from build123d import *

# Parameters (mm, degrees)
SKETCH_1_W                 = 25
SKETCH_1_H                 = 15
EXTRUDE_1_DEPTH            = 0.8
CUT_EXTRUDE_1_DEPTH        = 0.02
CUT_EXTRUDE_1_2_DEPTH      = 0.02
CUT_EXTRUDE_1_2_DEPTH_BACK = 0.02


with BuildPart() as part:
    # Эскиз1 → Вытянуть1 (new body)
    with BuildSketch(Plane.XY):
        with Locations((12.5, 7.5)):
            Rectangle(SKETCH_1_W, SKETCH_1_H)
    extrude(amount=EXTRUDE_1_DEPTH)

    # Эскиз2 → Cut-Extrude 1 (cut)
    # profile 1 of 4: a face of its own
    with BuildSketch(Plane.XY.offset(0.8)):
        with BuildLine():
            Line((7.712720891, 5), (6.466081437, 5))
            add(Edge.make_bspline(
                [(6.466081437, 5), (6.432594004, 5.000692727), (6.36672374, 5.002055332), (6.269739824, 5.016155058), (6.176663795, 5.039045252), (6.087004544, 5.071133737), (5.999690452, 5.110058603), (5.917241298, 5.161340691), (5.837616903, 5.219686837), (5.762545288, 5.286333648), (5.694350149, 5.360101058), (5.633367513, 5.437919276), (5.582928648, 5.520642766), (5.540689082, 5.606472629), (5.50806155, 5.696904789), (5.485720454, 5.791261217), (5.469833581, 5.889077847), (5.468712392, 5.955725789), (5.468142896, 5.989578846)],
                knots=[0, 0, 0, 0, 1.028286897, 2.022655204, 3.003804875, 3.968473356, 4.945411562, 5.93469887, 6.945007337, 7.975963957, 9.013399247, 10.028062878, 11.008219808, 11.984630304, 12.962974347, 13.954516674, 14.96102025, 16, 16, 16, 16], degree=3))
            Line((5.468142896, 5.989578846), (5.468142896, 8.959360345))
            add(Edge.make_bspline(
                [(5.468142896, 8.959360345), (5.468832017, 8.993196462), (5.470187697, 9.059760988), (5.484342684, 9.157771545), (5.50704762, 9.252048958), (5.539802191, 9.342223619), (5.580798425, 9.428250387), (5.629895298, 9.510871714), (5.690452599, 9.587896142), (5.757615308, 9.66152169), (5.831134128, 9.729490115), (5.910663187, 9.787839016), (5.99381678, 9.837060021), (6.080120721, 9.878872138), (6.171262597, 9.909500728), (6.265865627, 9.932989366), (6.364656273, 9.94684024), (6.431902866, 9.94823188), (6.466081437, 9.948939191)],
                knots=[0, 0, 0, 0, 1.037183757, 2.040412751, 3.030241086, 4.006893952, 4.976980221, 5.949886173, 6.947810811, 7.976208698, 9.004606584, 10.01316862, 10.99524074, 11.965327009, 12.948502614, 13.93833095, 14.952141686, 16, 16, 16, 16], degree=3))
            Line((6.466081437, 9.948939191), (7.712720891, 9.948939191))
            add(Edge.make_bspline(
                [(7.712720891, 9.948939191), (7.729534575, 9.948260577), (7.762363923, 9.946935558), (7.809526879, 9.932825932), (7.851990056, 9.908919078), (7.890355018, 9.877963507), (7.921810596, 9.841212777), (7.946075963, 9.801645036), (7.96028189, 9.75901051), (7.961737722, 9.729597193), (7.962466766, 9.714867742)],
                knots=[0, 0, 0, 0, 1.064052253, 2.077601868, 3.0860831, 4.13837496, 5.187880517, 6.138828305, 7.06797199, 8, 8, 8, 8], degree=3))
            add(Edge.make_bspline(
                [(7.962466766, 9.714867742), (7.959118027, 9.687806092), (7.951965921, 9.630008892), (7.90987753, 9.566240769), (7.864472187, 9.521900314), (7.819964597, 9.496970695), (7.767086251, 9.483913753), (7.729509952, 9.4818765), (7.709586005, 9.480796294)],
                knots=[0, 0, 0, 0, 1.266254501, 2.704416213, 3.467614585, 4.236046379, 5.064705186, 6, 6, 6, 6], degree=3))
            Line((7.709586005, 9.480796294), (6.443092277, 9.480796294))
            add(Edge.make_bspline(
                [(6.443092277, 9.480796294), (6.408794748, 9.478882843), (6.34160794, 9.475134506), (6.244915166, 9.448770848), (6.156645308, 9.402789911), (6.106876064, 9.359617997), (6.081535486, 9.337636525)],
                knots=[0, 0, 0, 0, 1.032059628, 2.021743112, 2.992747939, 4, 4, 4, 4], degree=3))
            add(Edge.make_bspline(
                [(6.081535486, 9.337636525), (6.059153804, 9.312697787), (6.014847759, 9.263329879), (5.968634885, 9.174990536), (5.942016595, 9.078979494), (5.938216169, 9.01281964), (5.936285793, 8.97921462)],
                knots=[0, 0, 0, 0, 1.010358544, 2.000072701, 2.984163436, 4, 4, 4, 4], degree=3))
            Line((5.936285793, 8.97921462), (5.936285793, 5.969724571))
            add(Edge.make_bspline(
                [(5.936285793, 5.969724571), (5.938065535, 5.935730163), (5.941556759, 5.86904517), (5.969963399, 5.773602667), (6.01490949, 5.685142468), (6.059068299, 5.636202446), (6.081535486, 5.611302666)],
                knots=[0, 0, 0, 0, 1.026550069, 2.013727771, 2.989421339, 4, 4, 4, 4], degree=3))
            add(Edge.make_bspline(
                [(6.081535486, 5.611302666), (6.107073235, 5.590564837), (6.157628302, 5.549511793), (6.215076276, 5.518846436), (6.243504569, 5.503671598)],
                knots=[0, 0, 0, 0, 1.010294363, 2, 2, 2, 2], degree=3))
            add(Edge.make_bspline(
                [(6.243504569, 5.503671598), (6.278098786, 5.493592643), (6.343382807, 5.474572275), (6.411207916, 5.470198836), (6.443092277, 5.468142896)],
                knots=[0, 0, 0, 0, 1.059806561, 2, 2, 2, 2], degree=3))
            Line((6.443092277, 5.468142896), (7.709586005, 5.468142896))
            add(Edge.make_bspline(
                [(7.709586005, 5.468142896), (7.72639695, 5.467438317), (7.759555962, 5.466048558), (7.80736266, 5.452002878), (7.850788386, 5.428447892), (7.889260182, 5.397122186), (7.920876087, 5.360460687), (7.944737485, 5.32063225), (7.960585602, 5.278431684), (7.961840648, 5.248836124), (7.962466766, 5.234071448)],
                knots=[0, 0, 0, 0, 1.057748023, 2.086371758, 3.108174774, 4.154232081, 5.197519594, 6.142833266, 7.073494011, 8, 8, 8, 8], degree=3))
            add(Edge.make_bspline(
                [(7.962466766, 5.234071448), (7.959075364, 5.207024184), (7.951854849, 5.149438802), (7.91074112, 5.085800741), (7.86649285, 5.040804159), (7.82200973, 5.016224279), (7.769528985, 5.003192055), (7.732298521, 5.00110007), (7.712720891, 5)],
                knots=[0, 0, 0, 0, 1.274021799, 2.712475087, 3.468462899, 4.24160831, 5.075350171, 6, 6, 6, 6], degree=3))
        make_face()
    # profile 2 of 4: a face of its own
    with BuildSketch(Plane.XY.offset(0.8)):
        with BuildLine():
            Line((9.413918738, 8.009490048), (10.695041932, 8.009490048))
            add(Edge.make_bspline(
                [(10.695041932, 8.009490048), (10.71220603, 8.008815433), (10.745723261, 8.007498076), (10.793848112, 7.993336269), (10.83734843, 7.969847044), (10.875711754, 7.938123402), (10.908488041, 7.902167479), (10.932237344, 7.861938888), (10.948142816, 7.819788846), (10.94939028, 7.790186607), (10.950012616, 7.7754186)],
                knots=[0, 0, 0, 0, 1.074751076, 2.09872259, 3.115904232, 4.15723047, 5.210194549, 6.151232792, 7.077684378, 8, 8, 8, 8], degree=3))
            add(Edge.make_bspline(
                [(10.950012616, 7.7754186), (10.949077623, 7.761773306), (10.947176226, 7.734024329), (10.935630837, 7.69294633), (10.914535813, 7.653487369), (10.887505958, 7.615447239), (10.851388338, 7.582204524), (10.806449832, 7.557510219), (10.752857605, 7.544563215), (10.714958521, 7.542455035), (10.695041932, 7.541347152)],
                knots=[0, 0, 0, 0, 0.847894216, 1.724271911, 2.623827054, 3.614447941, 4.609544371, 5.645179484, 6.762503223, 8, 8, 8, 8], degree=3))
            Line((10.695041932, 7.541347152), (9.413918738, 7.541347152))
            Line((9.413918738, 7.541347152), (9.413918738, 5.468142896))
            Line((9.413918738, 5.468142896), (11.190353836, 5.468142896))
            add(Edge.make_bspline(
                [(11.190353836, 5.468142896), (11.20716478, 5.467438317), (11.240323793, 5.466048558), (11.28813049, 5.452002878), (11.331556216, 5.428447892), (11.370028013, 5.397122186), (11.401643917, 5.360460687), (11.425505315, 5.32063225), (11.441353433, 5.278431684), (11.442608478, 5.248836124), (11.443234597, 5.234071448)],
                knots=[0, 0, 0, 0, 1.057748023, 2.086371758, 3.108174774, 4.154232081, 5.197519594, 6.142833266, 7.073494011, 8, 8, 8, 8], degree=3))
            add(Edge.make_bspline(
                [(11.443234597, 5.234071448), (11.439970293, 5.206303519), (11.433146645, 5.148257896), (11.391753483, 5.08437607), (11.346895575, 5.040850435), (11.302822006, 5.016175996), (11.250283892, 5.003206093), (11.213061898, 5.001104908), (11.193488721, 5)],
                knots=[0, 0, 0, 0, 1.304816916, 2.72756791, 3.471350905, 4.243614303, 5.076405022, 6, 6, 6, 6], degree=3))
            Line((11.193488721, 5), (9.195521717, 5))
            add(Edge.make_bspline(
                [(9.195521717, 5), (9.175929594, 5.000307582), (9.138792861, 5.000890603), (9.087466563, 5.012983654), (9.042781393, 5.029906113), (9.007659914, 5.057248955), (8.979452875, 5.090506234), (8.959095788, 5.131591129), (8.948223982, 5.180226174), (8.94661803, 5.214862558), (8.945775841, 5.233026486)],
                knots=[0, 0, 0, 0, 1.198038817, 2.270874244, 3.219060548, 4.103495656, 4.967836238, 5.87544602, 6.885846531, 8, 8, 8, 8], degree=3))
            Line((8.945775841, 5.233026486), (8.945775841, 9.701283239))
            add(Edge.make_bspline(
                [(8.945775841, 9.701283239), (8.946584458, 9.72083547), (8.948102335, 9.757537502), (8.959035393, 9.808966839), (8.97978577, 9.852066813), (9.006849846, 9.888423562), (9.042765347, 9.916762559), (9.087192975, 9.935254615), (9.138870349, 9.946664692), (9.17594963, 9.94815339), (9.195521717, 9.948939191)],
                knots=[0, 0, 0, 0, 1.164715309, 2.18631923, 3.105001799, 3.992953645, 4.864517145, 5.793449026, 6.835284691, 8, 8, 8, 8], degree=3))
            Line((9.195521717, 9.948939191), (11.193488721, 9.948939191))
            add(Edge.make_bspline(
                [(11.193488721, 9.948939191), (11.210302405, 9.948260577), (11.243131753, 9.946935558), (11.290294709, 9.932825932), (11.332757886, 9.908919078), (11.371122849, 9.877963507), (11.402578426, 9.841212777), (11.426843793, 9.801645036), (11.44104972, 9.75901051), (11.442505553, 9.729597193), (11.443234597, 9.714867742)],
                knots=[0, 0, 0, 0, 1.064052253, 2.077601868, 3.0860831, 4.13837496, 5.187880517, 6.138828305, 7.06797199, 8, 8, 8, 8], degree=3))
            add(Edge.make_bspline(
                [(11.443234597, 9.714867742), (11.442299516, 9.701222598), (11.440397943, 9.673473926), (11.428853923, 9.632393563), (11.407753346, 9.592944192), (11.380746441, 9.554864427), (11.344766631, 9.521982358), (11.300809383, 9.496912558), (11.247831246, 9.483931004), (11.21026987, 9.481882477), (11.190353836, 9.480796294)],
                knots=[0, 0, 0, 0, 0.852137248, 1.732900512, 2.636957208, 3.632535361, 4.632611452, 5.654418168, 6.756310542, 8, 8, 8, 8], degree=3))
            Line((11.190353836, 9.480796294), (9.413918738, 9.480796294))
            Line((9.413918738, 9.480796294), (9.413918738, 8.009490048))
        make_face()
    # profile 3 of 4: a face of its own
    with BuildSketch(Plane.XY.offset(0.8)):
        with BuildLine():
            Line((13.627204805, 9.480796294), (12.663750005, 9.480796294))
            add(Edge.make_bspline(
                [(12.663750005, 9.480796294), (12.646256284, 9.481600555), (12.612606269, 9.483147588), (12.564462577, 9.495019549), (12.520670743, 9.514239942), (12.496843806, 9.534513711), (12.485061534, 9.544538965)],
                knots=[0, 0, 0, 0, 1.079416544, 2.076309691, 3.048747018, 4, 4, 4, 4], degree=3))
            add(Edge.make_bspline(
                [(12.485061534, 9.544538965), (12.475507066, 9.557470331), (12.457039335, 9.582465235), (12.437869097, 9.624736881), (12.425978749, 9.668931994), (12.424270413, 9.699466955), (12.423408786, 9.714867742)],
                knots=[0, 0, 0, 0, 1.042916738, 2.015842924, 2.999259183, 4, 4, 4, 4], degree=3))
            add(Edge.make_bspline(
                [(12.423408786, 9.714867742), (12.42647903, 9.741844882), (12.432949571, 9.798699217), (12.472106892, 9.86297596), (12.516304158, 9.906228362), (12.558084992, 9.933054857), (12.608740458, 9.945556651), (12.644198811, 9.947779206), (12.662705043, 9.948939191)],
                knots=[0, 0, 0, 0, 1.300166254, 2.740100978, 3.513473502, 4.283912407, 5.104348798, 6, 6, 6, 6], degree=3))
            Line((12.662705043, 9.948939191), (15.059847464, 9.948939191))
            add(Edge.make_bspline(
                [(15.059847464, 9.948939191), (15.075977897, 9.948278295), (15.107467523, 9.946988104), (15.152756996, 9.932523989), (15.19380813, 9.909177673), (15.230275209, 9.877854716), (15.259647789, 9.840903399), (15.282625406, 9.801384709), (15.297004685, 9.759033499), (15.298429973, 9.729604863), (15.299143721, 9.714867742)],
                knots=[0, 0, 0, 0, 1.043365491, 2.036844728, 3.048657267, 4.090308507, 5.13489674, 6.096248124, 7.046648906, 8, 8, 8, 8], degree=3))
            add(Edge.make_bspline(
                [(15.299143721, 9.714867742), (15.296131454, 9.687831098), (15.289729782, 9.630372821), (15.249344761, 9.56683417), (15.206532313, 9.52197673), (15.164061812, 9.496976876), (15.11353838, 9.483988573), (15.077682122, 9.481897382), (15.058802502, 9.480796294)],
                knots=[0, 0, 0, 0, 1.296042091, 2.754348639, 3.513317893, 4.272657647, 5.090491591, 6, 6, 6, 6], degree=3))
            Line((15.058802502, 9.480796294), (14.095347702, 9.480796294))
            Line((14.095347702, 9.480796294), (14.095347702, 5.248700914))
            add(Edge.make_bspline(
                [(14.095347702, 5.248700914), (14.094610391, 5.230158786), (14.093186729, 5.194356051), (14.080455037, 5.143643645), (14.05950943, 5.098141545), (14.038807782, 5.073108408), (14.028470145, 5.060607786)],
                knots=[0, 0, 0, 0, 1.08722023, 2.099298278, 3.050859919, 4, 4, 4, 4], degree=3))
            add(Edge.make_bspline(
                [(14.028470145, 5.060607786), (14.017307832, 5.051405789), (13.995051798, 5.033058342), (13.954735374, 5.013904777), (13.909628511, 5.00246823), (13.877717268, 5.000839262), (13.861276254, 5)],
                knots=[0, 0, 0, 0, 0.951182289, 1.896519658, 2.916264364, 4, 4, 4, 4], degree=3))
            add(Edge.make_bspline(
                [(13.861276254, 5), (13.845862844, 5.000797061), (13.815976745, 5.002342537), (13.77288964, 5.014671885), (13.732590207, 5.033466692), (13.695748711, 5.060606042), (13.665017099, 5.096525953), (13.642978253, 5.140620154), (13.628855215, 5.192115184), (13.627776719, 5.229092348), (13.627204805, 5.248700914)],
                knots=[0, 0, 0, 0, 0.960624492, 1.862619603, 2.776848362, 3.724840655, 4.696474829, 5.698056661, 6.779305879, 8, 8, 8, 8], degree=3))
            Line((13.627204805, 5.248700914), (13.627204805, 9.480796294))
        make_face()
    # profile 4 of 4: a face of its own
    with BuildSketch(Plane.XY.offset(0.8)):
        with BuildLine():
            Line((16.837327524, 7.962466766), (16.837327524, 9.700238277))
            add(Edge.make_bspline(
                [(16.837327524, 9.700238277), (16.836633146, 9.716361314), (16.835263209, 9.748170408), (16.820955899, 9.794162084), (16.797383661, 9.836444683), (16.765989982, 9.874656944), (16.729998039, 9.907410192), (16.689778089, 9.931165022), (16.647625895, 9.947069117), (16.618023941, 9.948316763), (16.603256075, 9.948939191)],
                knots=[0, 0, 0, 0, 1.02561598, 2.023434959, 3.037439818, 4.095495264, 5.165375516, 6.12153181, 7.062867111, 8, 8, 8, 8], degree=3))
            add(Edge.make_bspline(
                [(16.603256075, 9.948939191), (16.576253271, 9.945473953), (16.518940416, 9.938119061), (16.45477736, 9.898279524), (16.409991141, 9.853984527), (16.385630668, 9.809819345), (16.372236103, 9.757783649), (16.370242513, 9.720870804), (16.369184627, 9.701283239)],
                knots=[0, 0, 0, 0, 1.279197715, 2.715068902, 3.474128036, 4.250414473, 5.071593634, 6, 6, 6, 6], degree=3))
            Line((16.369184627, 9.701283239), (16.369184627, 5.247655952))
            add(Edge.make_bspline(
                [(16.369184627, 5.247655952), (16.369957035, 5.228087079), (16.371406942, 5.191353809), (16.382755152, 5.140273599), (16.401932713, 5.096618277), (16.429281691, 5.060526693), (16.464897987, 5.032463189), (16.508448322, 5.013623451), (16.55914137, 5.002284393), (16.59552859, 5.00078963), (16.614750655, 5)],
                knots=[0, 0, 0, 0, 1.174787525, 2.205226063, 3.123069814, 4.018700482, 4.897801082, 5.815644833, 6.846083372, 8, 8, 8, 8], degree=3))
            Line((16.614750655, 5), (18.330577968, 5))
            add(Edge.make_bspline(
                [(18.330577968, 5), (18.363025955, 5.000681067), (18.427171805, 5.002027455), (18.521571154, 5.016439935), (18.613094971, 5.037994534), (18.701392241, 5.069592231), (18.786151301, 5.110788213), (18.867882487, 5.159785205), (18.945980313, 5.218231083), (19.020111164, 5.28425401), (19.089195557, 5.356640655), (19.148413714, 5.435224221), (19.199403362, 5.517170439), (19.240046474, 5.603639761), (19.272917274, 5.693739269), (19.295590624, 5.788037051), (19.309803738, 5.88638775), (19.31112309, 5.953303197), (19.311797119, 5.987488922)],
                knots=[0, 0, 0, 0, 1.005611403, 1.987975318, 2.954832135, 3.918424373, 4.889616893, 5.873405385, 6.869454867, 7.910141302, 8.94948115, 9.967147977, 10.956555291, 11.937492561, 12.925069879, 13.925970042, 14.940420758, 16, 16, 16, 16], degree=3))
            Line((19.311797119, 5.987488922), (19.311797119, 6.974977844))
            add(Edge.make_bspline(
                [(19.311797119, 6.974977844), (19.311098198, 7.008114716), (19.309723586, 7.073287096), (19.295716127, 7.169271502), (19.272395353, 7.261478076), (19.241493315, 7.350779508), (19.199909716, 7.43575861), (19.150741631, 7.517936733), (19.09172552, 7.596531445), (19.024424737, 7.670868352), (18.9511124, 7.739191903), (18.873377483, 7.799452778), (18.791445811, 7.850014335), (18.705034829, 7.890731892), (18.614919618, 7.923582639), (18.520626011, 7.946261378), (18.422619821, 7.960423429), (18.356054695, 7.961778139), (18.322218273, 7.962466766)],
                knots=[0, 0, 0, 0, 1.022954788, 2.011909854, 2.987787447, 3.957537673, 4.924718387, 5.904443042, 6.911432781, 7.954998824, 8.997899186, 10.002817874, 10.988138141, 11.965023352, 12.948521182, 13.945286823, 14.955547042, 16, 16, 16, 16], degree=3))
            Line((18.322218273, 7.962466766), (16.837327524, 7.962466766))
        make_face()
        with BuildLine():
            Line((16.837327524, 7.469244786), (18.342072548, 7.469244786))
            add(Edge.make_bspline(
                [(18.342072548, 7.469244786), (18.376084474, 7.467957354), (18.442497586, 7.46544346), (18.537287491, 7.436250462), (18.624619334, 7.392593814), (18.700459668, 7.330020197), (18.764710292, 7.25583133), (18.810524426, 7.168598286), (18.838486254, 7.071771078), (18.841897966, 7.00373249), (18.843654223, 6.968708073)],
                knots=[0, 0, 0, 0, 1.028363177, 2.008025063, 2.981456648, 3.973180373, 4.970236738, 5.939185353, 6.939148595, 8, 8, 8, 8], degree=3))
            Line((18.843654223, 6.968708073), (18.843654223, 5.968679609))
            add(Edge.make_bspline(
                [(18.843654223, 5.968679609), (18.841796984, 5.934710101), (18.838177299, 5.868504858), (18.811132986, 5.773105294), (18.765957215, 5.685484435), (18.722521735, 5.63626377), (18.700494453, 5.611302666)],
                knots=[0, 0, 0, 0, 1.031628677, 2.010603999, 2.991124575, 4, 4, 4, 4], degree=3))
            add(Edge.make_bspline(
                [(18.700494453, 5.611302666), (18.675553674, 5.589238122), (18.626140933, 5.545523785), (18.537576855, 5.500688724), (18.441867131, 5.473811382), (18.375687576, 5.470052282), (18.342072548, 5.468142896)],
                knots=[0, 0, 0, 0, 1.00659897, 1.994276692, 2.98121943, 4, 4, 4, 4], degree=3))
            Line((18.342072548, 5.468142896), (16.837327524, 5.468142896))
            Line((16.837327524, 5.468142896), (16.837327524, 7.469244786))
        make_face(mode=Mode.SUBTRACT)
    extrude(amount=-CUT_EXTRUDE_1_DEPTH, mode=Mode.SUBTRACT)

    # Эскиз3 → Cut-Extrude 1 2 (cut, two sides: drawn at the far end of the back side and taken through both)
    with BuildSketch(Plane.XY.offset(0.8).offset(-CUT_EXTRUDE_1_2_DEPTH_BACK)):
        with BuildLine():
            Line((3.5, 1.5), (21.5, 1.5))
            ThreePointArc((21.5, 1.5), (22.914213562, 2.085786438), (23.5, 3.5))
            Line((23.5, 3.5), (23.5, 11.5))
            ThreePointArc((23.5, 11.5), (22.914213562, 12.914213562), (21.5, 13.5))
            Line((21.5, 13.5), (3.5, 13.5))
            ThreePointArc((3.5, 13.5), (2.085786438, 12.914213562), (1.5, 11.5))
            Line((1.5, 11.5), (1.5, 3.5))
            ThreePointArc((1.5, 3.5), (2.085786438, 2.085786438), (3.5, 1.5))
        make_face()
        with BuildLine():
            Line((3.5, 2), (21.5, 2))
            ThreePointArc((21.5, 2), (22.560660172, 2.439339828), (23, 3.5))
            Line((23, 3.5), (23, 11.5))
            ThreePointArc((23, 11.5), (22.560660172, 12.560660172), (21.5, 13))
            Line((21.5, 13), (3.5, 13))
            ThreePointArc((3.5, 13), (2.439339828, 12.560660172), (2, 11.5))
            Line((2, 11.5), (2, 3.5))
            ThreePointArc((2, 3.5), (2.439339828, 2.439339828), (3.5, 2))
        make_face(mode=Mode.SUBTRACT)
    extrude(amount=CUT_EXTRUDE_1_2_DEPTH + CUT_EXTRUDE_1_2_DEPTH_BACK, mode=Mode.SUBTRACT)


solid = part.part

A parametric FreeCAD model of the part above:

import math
import FreeCAD as App
import Part
import Sketcher

V = App.Vector


def add_polygon(sketch, points):
    """Adds a closed chain of lines whose ends are joined by coincident constraints."""
    first, n = sketch.GeometryCount, len(points)
    for a, b in zip(points, points[1:] + points[:1]):
        sketch.addGeometry(Part.LineSegment(App.Vector(*a, 0), App.Vector(*b, 0)), False)
    for i in range(n):
        sketch.addConstraint(Sketcher.Constraint("Coincident", first + i, 2, first + (i + 1) % n, 1))

doc = App.newDocument("Part")
body = doc.addObject("PartDesign::Body", "Body")

# Sketch on XY plane
sketch1 = doc.addObject("Sketcher::SketchObject", "Sketch")
body.addObject(sketch1)
sketch1.AttachmentSupport = (doc.XY_Plane, [""])
sketch1.MapMode = "FlatFace"
add_polygon(sketch1, [(0, 15), (0, 0), (25, 0), (25, 15)])  # lines 0-3
sketch1.addConstraint(Sketcher.Constraint("Vertical", 0))
sketch1.addConstraint(Sketcher.Constraint("Horizontal", 1))
sketch1.addConstraint(Sketcher.Constraint("Vertical", 2))
sketch1.addConstraint(Sketcher.Constraint("Horizontal", 3))
sketch1.addConstraint(Sketcher.Constraint("Coincident", 0, 2, -1, 1))
sketch1.addConstraint(Sketcher.Constraint("DistanceX", 1, 1, 1, 2, 25.0))
sketch1.addConstraint(Sketcher.Constraint("DistanceY", 0, 2, 0, 1, 15.0))
pad1 = doc.addObject("PartDesign::Pad", "Pad")
body.addObject(pad1)
pad1.Profile = sketch1
pad1.Length = 0.8

# Sketch on XY plane
sketch2 = doc.addObject("Sketcher::SketchObject", "Sketch001")
body.addObject(sketch2)
sketch2.AttachmentSupport = (doc.XY_Plane, [""])
sketch2.MapMode = "FlatFace"
sketch2.AttachmentOffset = App.Placement(V(0, 0, 0.8), App.Rotation())
sketch2.addGeometry(Part.LineSegment(V(6.466081, 5, 0), V(7.712721, 5, 0)), False)
sketch2.addGeometry(Part.BSplineCurve([V(7.962467, 5.234071, 0), V(7.959075, 5.207024, 0), V(7.951855, 5.149439, 0), V(7.910741, 5.085801, 0), V(7.866493, 5.040804, 0), V(7.82201, 5.016224, 0), V(7.769529, 5.003192, 0), V(7.732299, 5.0011, 0), V(7.712721, 5, 0)], [4, 1, 1, 1, 1, 1, 4], [0, 1.274021799, 2.712475087, 3.468462899, 4.24160831, 5.075350171, 6], False, 3, [1, 1, 1, 1, 1, 1, 1, 1, 1], False), False)
sketch2.addGeometry(Part.BSplineCurve([V(7.709586, 5.468143, 0), V(7.726397, 5.467438, 0), V(7.759556, 5.466049, 0), V(7.807363, 5.452003, 0), V(7.850788, 5.428448, 0), V(7.88926, 5.397122, 0), V(7.920876, 5.360461, 0), V(7.944737, 5.320632, 0), V(7.960586, 5.278432, 0), V(7.961841, 5.248836, 0), V(7.962467, 5.234071, 0)], [4, 1, 1, 1, 1, 1, 1, 1, 4], [0, 1.057748023, 2.086371758, 3.108174774, 4.154232081, 5.197519594, 6.142833266, 7.073494011, 8], False, 3, [1, 1, 1, 1, 1, 1, 1, 1, 1, 1, 1], False), False)
sketch2.addGeometry(Part.LineSegment(V(7.709586, 5.468143, 0), V(6.443092, 5.468143, 0)), False)
sketch2.addGeometry(Part.BSplineCurve([V(6.243505, 5.503672, 0), V(6.278099, 5.493593, 0), V(6.343383, 5.474572, 0), V(6.411208, 5.470199, 0), V(6.443092, 5.468143, 0)], [4, 1, 4], [0, 1.059806561, 2], False, 3, [1, 1, 1, 1, 1], False), False)
sketch2.addGeometry(Part.BSplineCurve([V(6.081535, 5.611303, 0), V(6.107073, 5.590565, 0), V(6.157628, 5.549512, 0), V(6.215076, 5.518846, 0), V(6.243505, 5.503672, 0)], [4, 1, 4], [0, 1.010294363, 2], False, 3, [1, 1, 1, 1, 1], False), False)
sketch2.addGeometry(Part.BSplineCurve([V(5.936286, 5.969725, 0), V(5.938066, 5.93573, 0), V(5.941557, 5.869045, 0), V(5.969963, 5.773603, 0), V(6.014909, 5.685142, 0), V(6.059068, 5.636202, 0), V(6.081535, 5.611303, 0)], [4, 1, 1, 1, 4], [0, 1.026550069, 2.013727771, 2.989421339, 4], False, 3, [1, 1, 1, 1, 1, 1, 1], False), False)
sketch2.addGeometry(Part.LineSegment(V(5.936286, 5.969725, 0), V(5.936286, 8.979215, 0)), False)
sketch2.addGeometry(Part.BSplineCurve([V(6.081535, 9.337637, 0), V(6.059154, 9.312698, 0), V(6.014848, 9.26333, 0), V(5.968635, 9.174991, 0), V(5.942017, 9.078979, 0), V(5.938216, 9.01282, 0), V(5.936286, 8.979215, 0)], [4, 1, 1, 1, 4], [0, 1.010358544, 2.000072701, 2.984163436, 4], False, 3, [1, 1, 1, 1, 1, 1, 1], False), False)
sketch2.addGeometry(Part.BSplineCurve([V(6.443092, 9.480796, 0), V(6.408795, 9.478883, 0), V(6.341608, 9.475135, 0), V(6.244915, 9.448771, 0), V(6.156645, 9.40279, 0), V(6.106876, 9.359618, 0), V(6.081535, 9.337637, 0)], [4, 1, 1, 1, 4], [0, 1.032059628, 2.021743112, 2.992747939, 4], False, 3, [1, 1, 1, 1, 1, 1, 1], False), False)
sketch2.addGeometry(Part.LineSegment(V(6.443092, 9.480796, 0), V(7.709586, 9.480796, 0)), False)
sketch2.addGeometry(Part.BSplineCurve([V(7.962467, 9.714868, 0), V(7.959118, 9.687806, 0), V(7.951966, 9.630009, 0), V(7.909878, 9.566241, 0), V(7.864472, 9.5219, 0), V(7.819965, 9.496971, 0), V(7.767086, 9.483914, 0), V(7.72951, 9.481877, 0), V(7.709586, 9.480796, 0)], [4, 1, 1, 1, 1, 1, 4], [0, 1.266254501, 2.704416213, 3.467614585, 4.236046379, 5.064705186, 6], False, 3, [1, 1, 1, 1, 1, 1, 1, 1, 1], False), False)
sketch2.addGeometry(Part.BSplineCurve([V(7.712721, 9.948939, 0), V(7.729535, 9.948261, 0), V(7.762364, 9.946936, 0), V(7.809527, 9.932826, 0), V(7.85199, 9.908919, 0), V(7.890355, 9.877964, 0), V(7.921811, 9.841213, 0), V(7.946076, 9.801645, 0), V(7.960282, 9.759011, 0), V(7.961738, 9.729597, 0), V(7.962467, 9.714868, 0)], [4, 1, 1, 1, 1, 1, 1, 1, 4], [0, 1.064052253, 2.077601868, 3.0860831, 4.13837496, 5.187880517, 6.138828305, 7.06797199, 8], False, 3, [1, 1, 1, 1, 1, 1, 1, 1, 1, 1, 1], False), False)
sketch2.addGeometry(Part.LineSegment(V(7.712721, 9.948939, 0), V(6.466081, 9.948939, 0)), False)
sketch2.addGeometry(Part.BSplineCurve([V(5.468143, 8.95936, 0), V(5.468832, 8.993196, 0), V(5.470188, 9.059761, 0), V(5.484343, 9.157772, 0), V(5.507048, 9.252049, 0), V(5.539802, 9.342224, 0), V(5.580798, 9.42825, 0), V(5.629895, 9.510872, 0), V(5.690453, 9.587896, 0), V(5.757615, 9.661522, 0), V(5.831134, 9.72949, 0), V(5.910663, 9.787839, 0), V(5.993817, 9.83706, 0), V(6.080121, 9.878872, 0), V(6.171263, 9.909501, 0), V(6.265866, 9.932989, 0), V(6.364656, 9.94684, 0), V(6.431903, 9.948232, 0), V(6.466081, 9.948939, 0)], [4, 1, 1, 1, 1, 1, 1, 1, 1, 1, 1, 1, 1, 1, 1, 1, 4], [0, 1.037183757, 2.040412751, 3.030241086, 4.006893952, 4.976980221, 5.949886173, 6.947810811, 7.976208698, 9.004606584, 10.01316862, 10.99524074, 11.965327009, 12.948502614, 13.93833095, 14.952141686, 16], False, 3, [1, 1, 1, 1, 1, 1, 1, 1, 1, 1, 1, 1, 1, 1, 1, 1, 1, 1, 1], False), False)
sketch2.addGeometry(Part.LineSegment(V(5.468143, 8.95936, 0), V(5.468143, 5.989579, 0)), False)
sketch2.addGeometry(Part.BSplineCurve([V(6.466081, 5, 0), V(6.432594, 5.000693, 0), V(6.366724, 5.002055, 0), V(6.26974, 5.016155, 0), V(6.176664, 5.039045, 0), V(6.087005, 5.071134, 0), V(5.99969, 5.110059, 0), V(5.917241, 5.161341, 0), V(5.837617, 5.219687, 0), V(5.762545, 5.286334, 0), V(5.69435, 5.360101, 0), V(5.633368, 5.437919, 0), V(5.582929, 5.520643, 0), V(5.540689, 5.606473, 0), V(5.508062, 5.696905, 0), V(5.48572, 5.791261, 0), V(5.469834, 5.889078, 0), V(5.468712, 5.955726, 0), V(5.468143, 5.989579, 0)], [4, 1, 1, 1, 1, 1, 1, 1, 1, 1, 1, 1, 1, 1, 1, 1, 4], [0, 1.028286897, 2.022655204, 3.003804875, 3.968473356, 4.945411562, 5.93469887, 6.945007337, 7.975963957, 9.013399247, 10.028062878, 11.008219808, 11.984630304, 12.962974347, 13.954516674, 14.96102025, 16], False, 3, [1, 1, 1, 1, 1, 1, 1, 1, 1, 1, 1, 1, 1, 1, 1, 1, 1, 1, 1], False), False)
sketch2.addGeometry(Part.LineSegment(V(10.695042, 8.00949, 0), V(9.413919, 8.00949, 0)), False)
sketch2.addGeometry(Part.LineSegment(V(9.413919, 8.00949, 0), V(9.413919, 9.480796, 0)), False)
sketch2.addGeometry(Part.LineSegment(V(9.413919, 9.480796, 0), V(11.190354, 9.480796, 0)), False)
sketch2.addGeometry(Part.BSplineCurve([V(11.443235, 9.714868, 0), V(11.4423, 9.701223, 0), V(11.440398, 9.673474, 0), V(11.428854, 9.632394, 0), V(11.407753, 9.592944, 0), V(11.380746, 9.554864, 0), V(11.344767, 9.521982, 0), V(11.300809, 9.496913, 0), V(11.247831, 9.483931, 0), V(11.21027, 9.481882, 0), V(11.190354, 9.480796, 0)], [4, 1, 1, 1, 1, 1, 1, 1, 4], [0, 0.852137248, 1.732900512, 2.636957208, 3.632535361, 4.632611452, 5.654418168, 6.756310542, 8], False, 3, [1, 1, 1, 1, 1, 1, 1, 1, 1, 1, 1], False), False)
sketch2.addGeometry(Part.BSplineCurve([V(11.193489, 9.948939, 0), V(11.210302, 9.948261, 0), V(11.243132, 9.946936, 0), V(11.290295, 9.932826, 0), V(11.332758, 9.908919, 0), V(11.371123, 9.877964, 0), V(11.402578, 9.841213, 0), V(11.426844, 9.801645, 0), V(11.44105, 9.759011, 0), V(11.442506, 9.729597, 0), V(11.443235, 9.714868, 0)], [4, 1, 1, 1, 1, 1, 1, 1, 4], [0, 1.064052253, 2.077601868, 3.0860831, 4.13837496, 5.187880517, 6.138828305, 7.06797199, 8], False, 3, [1, 1, 1, 1, 1, 1, 1, 1, 1, 1, 1], False), False)
sketch2.addGeometry(Part.LineSegment(V(11.193489, 9.948939, 0), V(9.195522, 9.948939, 0)), False)
sketch2.addGeometry(Part.BSplineCurve([V(8.945776, 9.701283, 0), V(8.946584, 9.720835, 0), V(8.948102, 9.757538, 0), V(8.959035, 9.808967, 0), V(8.979786, 9.852067, 0), V(9.00685, 9.888424, 0), V(9.042765, 9.916763, 0), V(9.087193, 9.935255, 0), V(9.13887, 9.946665, 0), V(9.17595, 9.948153, 0), V(9.195522, 9.948939, 0)], [4, 1, 1, 1, 1, 1, 1, 1, 4], [0, 1.164715309, 2.18631923, 3.105001799, 3.992953645, 4.864517145, 5.793449026, 6.835284691, 8], False, 3, [1, 1, 1, 1, 1, 1, 1, 1, 1, 1, 1], False), False)
sketch2.addGeometry(Part.LineSegment(V(8.945776, 9.701283, 0), V(8.945776, 5.233026, 0)), False)
sketch2.addGeometry(Part.BSplineCurve([V(9.195522, 5, 0), V(9.17593, 5.000308, 0), V(9.138793, 5.000891, 0), V(9.087467, 5.012984, 0), V(9.042781, 5.029906, 0), V(9.00766, 5.057249, 0), V(8.979453, 5.090506, 0), V(8.959096, 5.131591, 0), V(8.948224, 5.180226, 0), V(8.946618, 5.214863, 0), V(8.945776, 5.233026, 0)], [4, 1, 1, 1, 1, 1, 1, 1, 4], [0, 1.198038817, 2.270874244, 3.219060548, 4.103495656, 4.967836238, 5.87544602, 6.885846531, 8], False, 3, [1, 1, 1, 1, 1, 1, 1, 1, 1, 1, 1], False), False)
sketch2.addGeometry(Part.LineSegment(V(9.195522, 5, 0), V(11.193489, 5, 0)), False)
sketch2.addGeometry(Part.BSplineCurve([V(11.443235, 5.234071, 0), V(11.43997, 5.206304, 0), V(11.433147, 5.148258, 0), V(11.391753, 5.084376, 0), V(11.346896, 5.04085, 0), V(11.302822, 5.016176, 0), V(11.250284, 5.003206, 0), V(11.213062, 5.001105, 0), V(11.193489, 5, 0)], [4, 1, 1, 1, 1, 1, 4], [0, 1.304816916, 2.72756791, 3.471350905, 4.243614303, 5.076405022, 6], False, 3, [1, 1, 1, 1, 1, 1, 1, 1, 1], False), False)
sketch2.addGeometry(Part.BSplineCurve([V(11.190354, 5.468143, 0), V(11.207165, 5.467438, 0), V(11.240324, 5.466049, 0), V(11.28813, 5.452003, 0), V(11.331556, 5.428448, 0), V(11.370028, 5.397122, 0), V(11.401644, 5.360461, 0), V(11.425505, 5.320632, 0), V(11.441353, 5.278432, 0), V(11.442608, 5.248836, 0), V(11.443235, 5.234071, 0)], [4, 1, 1, 1, 1, 1, 1, 1, 4], [0, 1.057748023, 2.086371758, 3.108174774, 4.154232081, 5.197519594, 6.142833266, 7.073494011, 8], False, 3, [1, 1, 1, 1, 1, 1, 1, 1, 1, 1, 1], False), False)
sketch2.addGeometry(Part.LineSegment(V(11.190354, 5.468143, 0), V(9.413919, 5.468143, 0)), False)
sketch2.addGeometry(Part.LineSegment(V(9.413919, 5.468143, 0), V(9.413919, 7.541347, 0)), False)
sketch2.addGeometry(Part.LineSegment(V(9.413919, 7.541347, 0), V(10.695042, 7.541347, 0)), False)
sketch2.addGeometry(Part.BSplineCurve([V(10.950013, 7.775419, 0), V(10.949078, 7.761773, 0), V(10.947176, 7.734024, 0), V(10.935631, 7.692946, 0), V(10.914536, 7.653487, 0), V(10.887506, 7.615447, 0), V(10.851388, 7.582205, 0), V(10.80645, 7.55751, 0), V(10.752858, 7.544563, 0), V(10.714959, 7.542455, 0), V(10.695042, 7.541347, 0)], [4, 1, 1, 1, 1, 1, 1, 1, 4], [0, 0.847894216, 1.724271911, 2.623827054, 3.614447941, 4.609544371, 5.645179484, 6.762503223, 8], False, 3, [1, 1, 1, 1, 1, 1, 1, 1, 1, 1, 1], False), False)
sketch2.addGeometry(Part.BSplineCurve([V(10.695042, 8.00949, 0), V(10.712206, 8.008815, 0), V(10.745723, 8.007498, 0), V(10.793848, 7.993336, 0), V(10.837348, 7.969847, 0), V(10.875712, 7.938123, 0), V(10.908488, 7.902167, 0), V(10.932237, 7.861939, 0), V(10.948143, 7.819789, 0), V(10.94939, 7.790187, 0), V(10.950013, 7.775419, 0)], [4, 1, 1, 1, 1, 1, 1, 1, 4], [0, 1.074751076, 2.09872259, 3.115904232, 4.15723047, 5.210194549, 6.151232792, 7.077684378, 8], False, 3, [1, 1, 1, 1, 1, 1, 1, 1, 1, 1, 1], False), False)
sketch2.addGeometry(Part.LineSegment(V(12.66375, 9.480796, 0), V(13.627205, 9.480796, 0)), False)
sketch2.addGeometry(Part.LineSegment(V(13.627205, 9.480796, 0), V(13.627205, 5.248701, 0)), False)
sketch2.addGeometry(Part.BSplineCurve([V(13.861276, 5, 0), V(13.845863, 5.000797, 0), V(13.815977, 5.002343, 0), V(13.77289, 5.014672, 0), V(13.73259, 5.033467, 0), V(13.695749, 5.060606, 0), V(13.665017, 5.096526, 0), V(13.642978, 5.14062, 0), V(13.628855, 5.192115, 0), V(13.627777, 5.229092, 0), V(13.627205, 5.248701, 0)], [4, 1, 1, 1, 1, 1, 1, 1, 4], [0, 0.960624492, 1.862619603, 2.776848362, 3.724840655, 4.696474829, 5.698056661, 6.779305879, 8], False, 3, [1, 1, 1, 1, 1, 1, 1, 1, 1, 1, 1], False), False)
sketch2.addGeometry(Part.BSplineCurve([V(14.02847, 5.060608, 0), V(14.017308, 5.051406, 0), V(13.995052, 5.033058, 0), V(13.954735, 5.013905, 0), V(13.909629, 5.002468, 0), V(13.877717, 5.000839, 0), V(13.861276, 5, 0)], [4, 1, 1, 1, 4], [0, 0.951182289, 1.896519658, 2.916264364, 4], False, 3, [1, 1, 1, 1, 1, 1, 1], False), False)
sketch2.addGeometry(Part.BSplineCurve([V(14.095348, 5.248701, 0), V(14.09461, 5.230159, 0), V(14.093187, 5.194356, 0), V(14.080455, 5.143644, 0), V(14.059509, 5.098142, 0), V(14.038808, 5.073108, 0), V(14.02847, 5.060608, 0)], [4, 1, 1, 1, 4], [0, 1.08722023, 2.099298278, 3.050859919, 4], False, 3, [1, 1, 1, 1, 1, 1, 1], False), False)
sketch2.addGeometry(Part.LineSegment(V(14.095348, 5.248701, 0), V(14.095348, 9.480796, 0)), False)
sketch2.addGeometry(Part.LineSegment(V(14.095348, 9.480796, 0), V(15.058803, 9.480796, 0)), False)
sketch2.addGeometry(Part.BSplineCurve([V(15.299144, 9.714868, 0), V(15.296131, 9.687831, 0), V(15.28973, 9.630373, 0), V(15.249345, 9.566834, 0), V(15.206532, 9.521977, 0), V(15.164062, 9.496977, 0), V(15.113538, 9.483989, 0), V(15.077682, 9.481897, 0), V(15.058803, 9.480796, 0)], [4, 1, 1, 1, 1, 1, 4], [0, 1.296042091, 2.754348639, 3.513317893, 4.272657647, 5.090491591, 6], False, 3, [1, 1, 1, 1, 1, 1, 1, 1, 1], False), False)
sketch2.addGeometry(Part.BSplineCurve([V(15.059847, 9.948939, 0), V(15.075978, 9.948278, 0), V(15.107468, 9.946988, 0), V(15.152757, 9.932524, 0), V(15.193808, 9.909178, 0), V(15.230275, 9.877855, 0), V(15.259648, 9.840903, 0), V(15.282625, 9.801385, 0), V(15.297005, 9.759033, 0), V(15.29843, 9.729605, 0), V(15.299144, 9.714868, 0)], [4, 1, 1, 1, 1, 1, 1, 1, 4], [0, 1.043365491, 2.036844728, 3.048657267, 4.090308507, 5.13489674, 6.096248124, 7.046648906, 8], False, 3, [1, 1, 1, 1, 1, 1, 1, 1, 1, 1, 1], False), False)
sketch2.addGeometry(Part.LineSegment(V(15.059847, 9.948939, 0), V(12.662705, 9.948939, 0)), False)
sketch2.addGeometry(Part.BSplineCurve([V(12.423409, 9.714868, 0), V(12.426479, 9.741845, 0), V(12.43295, 9.798699, 0), V(12.472107, 9.862976, 0), V(12.516304, 9.906228, 0), V(12.558085, 9.933055, 0), V(12.60874, 9.945557, 0), V(12.644199, 9.947779, 0), V(12.662705, 9.948939, 0)], [4, 1, 1, 1, 1, 1, 4], [0, 1.300166254, 2.740100978, 3.513473502, 4.283912407, 5.104348798, 6], False, 3, [1, 1, 1, 1, 1, 1, 1, 1, 1], False), False)
sketch2.addGeometry(Part.BSplineCurve([V(12.485062, 9.544539, 0), V(12.475507, 9.55747, 0), V(12.457039, 9.582465, 0), V(12.437869, 9.624737, 0), V(12.425979, 9.668932, 0), V(12.42427, 9.699467, 0), V(12.423409, 9.714868, 0)], [4, 1, 1, 1, 4], [0, 1.042916738, 2.015842924, 2.999259183, 4], False, 3, [1, 1, 1, 1, 1, 1, 1], False), False)
sketch2.addGeometry(Part.BSplineCurve([V(12.66375, 9.480796, 0), V(12.646256, 9.481601, 0), V(12.612606, 9.483148, 0), V(12.564463, 9.49502, 0), V(12.520671, 9.51424, 0), V(12.496844, 9.534514, 0), V(12.485062, 9.544539, 0)], [4, 1, 1, 1, 4], [0, 1.079416544, 2.076309691, 3.048747018, 4], False, 3, [1, 1, 1, 1, 1, 1, 1], False), False)
sketch2.addGeometry(Part.LineSegment(V(16.837328, 7.962467, 0), V(16.837328, 9.700238, 0)), False)
sketch2.addGeometry(Part.BSplineCurve([V(16.837328, 9.700238, 0), V(16.836633, 9.716361, 0), V(16.835263, 9.74817, 0), V(16.820956, 9.794162, 0), V(16.797384, 9.836445, 0), V(16.76599, 9.874657, 0), V(16.729998, 9.90741, 0), V(16.689778, 9.931165, 0), V(16.647626, 9.947069, 0), V(16.618024, 9.948317, 0), V(16.603256, 9.948939, 0)], [4, 1, 1, 1, 1, 1, 1, 1, 4], [0, 1.02561598, 2.023434959, 3.037439818, 4.095495264, 5.165375516, 6.12153181, 7.062867111, 8], False, 3, [1, 1, 1, 1, 1, 1, 1, 1, 1, 1, 1], False), False)
sketch2.addGeometry(Part.BSplineCurve([V(16.603256, 9.948939, 0), V(16.576253, 9.945474, 0), V(16.51894, 9.938119, 0), V(16.454777, 9.89828, 0), V(16.409991, 9.853985, 0), V(16.385631, 9.809819, 0), V(16.372236, 9.757784, 0), V(16.370243, 9.720871, 0), V(16.369185, 9.701283, 0)], [4, 1, 1, 1, 1, 1, 4], [0, 1.279197715, 2.715068902, 3.474128036, 4.250414473, 5.071593634, 6], False, 3, [1, 1, 1, 1, 1, 1, 1, 1, 1], False), False)
sketch2.addGeometry(Part.LineSegment(V(16.369185, 9.701283, 0), V(16.369185, 5.247656, 0)), False)
sketch2.addGeometry(Part.BSplineCurve([V(16.369185, 5.247656, 0), V(16.369957, 5.228087, 0), V(16.371407, 5.191354, 0), V(16.382755, 5.140274, 0), V(16.401933, 5.096618, 0), V(16.429282, 5.060527, 0), V(16.464898, 5.032463, 0), V(16.508448, 5.013623, 0), V(16.559141, 5.002284, 0), V(16.595529, 5.00079, 0), V(16.614751, 5, 0)], [4, 1, 1, 1, 1, 1, 1, 1, 4], [0, 1.174787525, 2.205226063, 3.123069814, 4.018700482, 4.897801082, 5.815644833, 6.846083372, 8], False, 3, [1, 1, 1, 1, 1, 1, 1, 1, 1, 1, 1], False), False)
sketch2.addGeometry(Part.LineSegment(V(16.614751, 5, 0), V(18.330578, 5, 0)), False)
sketch2.addGeometry(Part.BSplineCurve([V(18.330578, 5, 0), V(18.363026, 5.000681, 0), V(18.427172, 5.002027, 0), V(18.521571, 5.01644, 0), V(18.613095, 5.037995, 0), V(18.701392, 5.069592, 0), V(18.786151, 5.110788, 0), V(18.867882, 5.159785, 0), V(18.94598, 5.218231, 0), V(19.020111, 5.284254, 0), V(19.089196, 5.356641, 0), V(19.148414, 5.435224, 0), V(19.199403, 5.51717, 0), V(19.240046, 5.60364, 0), V(19.272917, 5.693739, 0), V(19.295591, 5.788037, 0), V(19.309804, 5.886388, 0), V(19.311123, 5.953303, 0), V(19.311797, 5.987489, 0)], [4, 1, 1, 1, 1, 1, 1, 1, 1, 1, 1, 1, 1, 1, 1, 1, 4], [0, 1.005611403, 1.987975318, 2.954832135, 3.918424373, 4.889616893, 5.873405385, 6.869454867, 7.910141302, 8.94948115, 9.967147977, 10.956555291, 11.937492561, 12.925069879, 13.925970042, 14.940420758, 16], False, 3, [1, 1, 1, 1, 1, 1, 1, 1, 1, 1, 1, 1, 1, 1, 1, 1, 1, 1, 1], False), False)
sketch2.addGeometry(Part.LineSegment(V(19.311797, 5.987489, 0), V(19.311797, 6.974978, 0)), False)
sketch2.addGeometry(Part.BSplineCurve([V(19.311797, 6.974978, 0), V(19.311098, 7.008115, 0), V(19.309724, 7.073287, 0), V(19.295716, 7.169272, 0), V(19.272395, 7.261478, 0), V(19.241493, 7.35078, 0), V(19.19991, 7.435759, 0), V(19.150742, 7.517937, 0), V(19.091726, 7.596531, 0), V(19.024425, 7.670868, 0), V(18.951112, 7.739192, 0), V(18.873377, 7.799453, 0), V(18.791446, 7.850014, 0), V(18.705035, 7.890732, 0), V(18.61492, 7.923583, 0), V(18.520626, 7.946261, 0), V(18.42262, 7.960423, 0), V(18.356055, 7.961778, 0), V(18.322218, 7.962467, 0)], [4, 1, 1, 1, 1, 1, 1, 1, 1, 1, 1, 1, 1, 1, 1, 1, 4], [0, 1.022954788, 2.011909854, 2.987787447, 3.957537673, 4.924718387, 5.904443042, 6.911432781, 7.954998824, 8.997899186, 10.002817874, 10.988138141, 11.965023352, 12.948521182, 13.945286823, 14.955547042, 16], False, 3, [1, 1, 1, 1, 1, 1, 1, 1, 1, 1, 1, 1, 1, 1, 1, 1, 1, 1, 1], False), False)
sketch2.addGeometry(Part.LineSegment(V(18.322218, 7.962467, 0), V(16.837328, 7.962467, 0)), False)
sketch2.addGeometry(Part.LineSegment(V(16.837328, 5.468143, 0), V(16.837328, 7.469245, 0)), False)
sketch2.addGeometry(Part.LineSegment(V(16.837328, 7.469245, 0), V(18.342073, 7.469245, 0)), False)
sketch2.addGeometry(Part.BSplineCurve([V(18.342073, 7.469245, 0), V(18.376084, 7.467957, 0), V(18.442498, 7.465443, 0), V(18.537287, 7.43625, 0), V(18.624619, 7.392594, 0), V(18.70046, 7.33002, 0), V(18.76471, 7.255831, 0), V(18.810524, 7.168598, 0), V(18.838486, 7.071771, 0), V(18.841898, 7.003732, 0), V(18.843654, 6.968708, 0)], [4, 1, 1, 1, 1, 1, 1, 1, 4], [0, 1.028363177, 2.008025063, 2.981456648, 3.973180373, 4.970236738, 5.939185353, 6.939148595, 8], False, 3, [1, 1, 1, 1, 1, 1, 1, 1, 1, 1, 1], False), False)
sketch2.addGeometry(Part.LineSegment(V(18.843654, 6.968708, 0), V(18.843654, 5.96868, 0)), False)
sketch2.addGeometry(Part.BSplineCurve([V(18.843654, 5.96868, 0), V(18.841797, 5.93471, 0), V(18.838177, 5.868505, 0), V(18.811133, 5.773105, 0), V(18.765957, 5.685484, 0), V(18.722522, 5.636264, 0), V(18.700494, 5.611303, 0)], [4, 1, 1, 1, 4], [0, 1.031628677, 2.010603999, 2.991124575, 4], False, 3, [1, 1, 1, 1, 1, 1, 1], False), False)
sketch2.addGeometry(Part.BSplineCurve([V(18.700494, 5.611303, 0), V(18.675554, 5.589238, 0), V(18.626141, 5.545524, 0), V(18.537577, 5.500689, 0), V(18.441867, 5.473811, 0), V(18.375688, 5.470052, 0), V(18.342073, 5.468143, 0)], [4, 1, 1, 1, 4], [0, 1.00659897, 1.994276692, 2.98121943, 4], False, 3, [1, 1, 1, 1, 1, 1, 1], False), False)
sketch2.addGeometry(Part.LineSegment(V(18.342073, 5.468143, 0), V(16.837328, 5.468143, 0)), False)
sketch2.addConstraint(Sketcher.Constraint("Block", 1))
sketch2.addConstraint(Sketcher.Constraint("Block", 2))
sketch2.addConstraint(Sketcher.Constraint("Block", 4))
sketch2.addConstraint(Sketcher.Constraint("Block", 5))
sketch2.addConstraint(Sketcher.Constraint("Block", 6))
sketch2.addConstraint(Sketcher.Constraint("Block", 8))
sketch2.addConstraint(Sketcher.Constraint("Block", 9))
sketch2.addConstraint(Sketcher.Constraint("Block", 11))
sketch2.addConstraint(Sketcher.Constraint("Block", 12))
sketch2.addConstraint(Sketcher.Constraint("Block", 14))
sketch2.addConstraint(Sketcher.Constraint("Block", 16))
sketch2.addConstraint(Sketcher.Constraint("Block", 20))
sketch2.addConstraint(Sketcher.Constraint("Block", 21))
sketch2.addConstraint(Sketcher.Constraint("Block", 23))
sketch2.addConstraint(Sketcher.Constraint("Block", 25))
sketch2.addConstraint(Sketcher.Constraint("Block", 27))
sketch2.addConstraint(Sketcher.Constraint("Block", 28))
sketch2.addConstraint(Sketcher.Constraint("Block", 32))
sketch2.addConstraint(Sketcher.Constraint("Block", 33))
sketch2.addConstraint(Sketcher.Constraint("Block", 36))
sketch2.addConstraint(Sketcher.Constraint("Block", 37))
sketch2.addConstraint(Sketcher.Constraint("Block", 38))
sketch2.addConstraint(Sketcher.Constraint("Block", 41))
sketch2.addConstraint(Sketcher.Constraint("Block", 42))
sketch2.addConstraint(Sketcher.Constraint("Block", 44))
sketch2.addConstraint(Sketcher.Constraint("Block", 45))
sketch2.addConstraint(Sketcher.Constraint("Block", 46))
sketch2.addConstraint(Sketcher.Constraint("Block", 48))
sketch2.addConstraint(Sketcher.Constraint("Block", 49))
sketch2.addConstraint(Sketcher.Constraint("Block", 51))
sketch2.addConstraint(Sketcher.Constraint("Block", 53))
sketch2.addConstraint(Sketcher.Constraint("Block", 55))
sketch2.addConstraint(Sketcher.Constraint("Block", 59))
sketch2.addConstraint(Sketcher.Constraint("Block", 61))
sketch2.addConstraint(Sketcher.Constraint("Block", 62))
sketch2.addConstraint(Sketcher.Constraint("Coincident", 0, 2, 1, 2))
sketch2.addConstraint(Sketcher.Constraint("Coincident", 2, 1, 3, 1))
sketch2.addConstraint(Sketcher.Constraint("Coincident", 3, 2, 4, 2))
sketch2.addConstraint(Sketcher.Constraint("Coincident", 6, 1, 7, 1))
sketch2.addConstraint(Sketcher.Constraint("Coincident", 7, 2, 8, 2))
sketch2.addConstraint(Sketcher.Constraint("Coincident", 9, 1, 10, 1))
sketch2.addConstraint(Sketcher.Constraint("Coincident", 10, 2, 11, 2))
sketch2.addConstraint(Sketcher.Constraint("Coincident", 12, 1, 13, 1))
sketch2.addConstraint(Sketcher.Constraint("Coincident", 13, 2, 14, 2))
sketch2.addConstraint(Sketcher.Constraint("Coincident", 14, 1, 15, 1))
sketch2.addConstraint(Sketcher.Constraint("Coincident", 15, 2, 16, 2))
sketch2.addConstraint(Sketcher.Constraint("Coincident", 16, 1, 0, 1))
sketch2.addConstraint(Sketcher.Constraint("Coincident", 17, 2, 18, 1))
sketch2.addConstraint(Sketcher.Constraint("Coincident", 18, 2, 19, 1))
sketch2.addConstraint(Sketcher.Constraint("Coincident", 19, 2, 20, 2))
sketch2.addConstraint(Sketcher.Constraint("Coincident", 21, 1, 22, 1))
sketch2.addConstraint(Sketcher.Constraint("Coincident", 22, 2, 23, 2))
sketch2.addConstraint(Sketcher.Constraint("Coincident", 23, 1, 24, 1))
sketch2.addConstraint(Sketcher.Constraint("Coincident", 24, 2, 25, 2))
sketch2.addConstraint(Sketcher.Constraint("Coincident", 25, 1, 26, 1))
sketch2.addConstraint(Sketcher.Constraint("Coincident", 26, 2, 27, 2))
sketch2.addConstraint(Sketcher.Constraint("Coincident", 28, 1, 29, 1))
sketch2.addConstraint(Sketcher.Constraint("Coincident", 29, 2, 30, 1))
sketch2.addConstraint(Sketcher.Constraint("Coincident", 30, 2, 31, 1))
sketch2.addConstraint(Sketcher.Constraint("Coincident", 31, 2, 32, 2))
sketch2.addConstraint(Sketcher.Constraint("Coincident", 33, 1, 17, 1))
sketch2.addConstraint(Sketcher.Constraint("Coincident", 34, 2, 35, 1))
sketch2.addConstraint(Sketcher.Constraint("Coincident", 35, 2, 36, 2))
sketch2.addConstraint(Sketcher.Constraint("Coincident", 38, 1, 39, 1))
sketch2.addConstraint(Sketcher.Constraint("Coincident", 39, 2, 40, 1))
sketch2.addConstraint(Sketcher.Constraint("Coincident", 40, 2, 41, 2))
sketch2.addConstraint(Sketcher.Constraint("Coincident", 42, 1, 43, 1))
sketch2.addConstraint(Sketcher.Constraint("Coincident", 43, 2, 44, 2))
sketch2.addConstraint(Sketcher.Constraint("Coincident", 46, 1, 34, 1))
sketch2.addConstraint(Sketcher.Constraint("Coincident", 47, 2, 48, 1))
sketch2.addConstraint(Sketcher.Constraint("Coincident", 49, 2, 50, 1))
sketch2.addConstraint(Sketcher.Constraint("Coincident", 50, 2, 51, 1))
sketch2.addConstraint(Sketcher.Constraint("Coincident", 51, 2, 52, 1))
sketch2.addConstraint(Sketcher.Constraint("Coincident", 52, 2, 53, 1))
sketch2.addConstraint(Sketcher.Constraint("Coincident", 53, 2, 54, 1))
sketch2.addConstraint(Sketcher.Constraint("Coincident", 54, 2, 55, 1))
sketch2.addConstraint(Sketcher.Constraint("Coincident", 55, 2, 56, 1))
sketch2.addConstraint(Sketcher.Constraint("Coincident", 56, 2, 47, 1))
sketch2.addConstraint(Sketcher.Constraint("Coincident", 57, 2, 58, 1))
sketch2.addConstraint(Sketcher.Constraint("Coincident", 58, 2, 59, 1))
sketch2.addConstraint(Sketcher.Constraint("Coincident", 59, 2, 60, 1))
sketch2.addConstraint(Sketcher.Constraint("Coincident", 60, 2, 61, 1))
sketch2.addConstraint(Sketcher.Constraint("Coincident", 62, 2, 63, 1))
sketch2.addConstraint(Sketcher.Constraint("Coincident", 63, 2, 57, 1))
sketch2.addConstraint(Sketcher.Constraint("Horizontal", 17))
sketch2.addConstraint(Sketcher.Constraint("Vertical", 18))
sketch2.addConstraint(Sketcher.Constraint("Horizontal", 19))
sketch2.addConstraint(Sketcher.Constraint("Horizontal", 29))
sketch2.addConstraint(Sketcher.Constraint("Vertical", 30))
sketch2.addConstraint(Sketcher.Constraint("Horizontal", 31))
sketch2.addConstraint(Sketcher.Constraint("Horizontal", 34))
sketch2.addConstraint(Sketcher.Constraint("Vertical", 35))
sketch2.addConstraint(Sketcher.Constraint("Vertical", 39))
sketch2.addConstraint(Sketcher.Constraint("Horizontal", 40))
sketch2.addConstraint(Sketcher.Constraint("Vertical", 47))
sketch2.addConstraint(Sketcher.Constraint("Horizontal", 56))
sketch2.addConstraint(Sketcher.Constraint("Vertical", 57))
sketch2.addConstraint(Sketcher.Constraint("Horizontal", 58))
sketch2.addConstraint(Sketcher.Constraint("Horizontal", 63))
sketch2.addConstraint(Sketcher.Constraint("Vertical", 18, 2, 29, 2))
sketch2.addConstraint(Sketcher.Constraint("Vertical", 56, 2, 57, 2))
sketch2.addConstraint(Sketcher.Constraint("DistanceX", 17, 2, 17, 1, 1.281123))
pocket1 = doc.addObject("PartDesign::Pocket", "Pocket")
body.addObject(pocket1)
pocket1.Profile = sketch2
pocket1.Length = 0.02

# Sketch on XY plane
sketch3 = doc.addObject("Sketcher::SketchObject", "Sketch002")
body.addObject(sketch3)
sketch3.AttachmentSupport = (doc.XY_Plane, [""])
sketch3.MapMode = "FlatFace"
sketch3.AttachmentOffset = App.Placement(V(0, 0, 0.8), App.Rotation())
sketch3.addGeometry(Part.LineSegment(V(3.5, 1.5, 0), V(21.5, 1.5, 0)), False)
sketch3.addGeometry(Part.ArcOfCircle(Part.Circle(V(21.5, 3.5, 0), V(0, 0, 1), 2), math.radians(-90), math.radians(0)), False)
sketch3.addGeometry(Part.LineSegment(V(23.5, 3.5, 0), V(23.5, 11.5, 0)), False)
sketch3.addGeometry(Part.ArcOfCircle(Part.Circle(V(21.5, 11.5, 0), V(0, 0, 1), 2), math.radians(0), math.radians(90)), False)
sketch3.addGeometry(Part.LineSegment(V(21.5, 13.5, 0), V(3.5, 13.5, 0)), False)
sketch3.addGeometry(Part.ArcOfCircle(Part.Circle(V(3.5, 11.5, 0), V(0, 0, 1), 2), math.radians(90), math.radians(180)), False)
sketch3.addGeometry(Part.LineSegment(V(1.5, 11.5, 0), V(1.5, 3.5, 0)), False)
sketch3.addGeometry(Part.ArcOfCircle(Part.Circle(V(3.5, 3.5, 0), V(0, 0, 1), 2), math.radians(-180), math.radians(-90)), False)
sketch3.addGeometry(Part.LineSegment(V(21.5, 2, 0), V(3.5, 2, 0)), False)
sketch3.addGeometry(Part.ArcOfCircle(Part.Circle(V(3.5, 3.5, 0), V(0, 0, 1), 1.5), math.radians(180), math.radians(270)), False)
sketch3.addGeometry(Part.LineSegment(V(2, 3.5, 0), V(2, 11.5, 0)), False)
sketch3.addGeometry(Part.ArcOfCircle(Part.Circle(V(3.5, 11.5, 0), V(0, 0, 1), 1.5), math.radians(90), math.radians(180)), False)
sketch3.addGeometry(Part.LineSegment(V(3.5, 13, 0), V(21.5, 13, 0)), False)
sketch3.addGeometry(Part.ArcOfCircle(Part.Circle(V(21.5, 11.5, 0), V(0, 0, 1), 1.5), math.radians(0), math.radians(90)), False)
sketch3.addGeometry(Part.LineSegment(V(23, 11.5, 0), V(23, 3.5, 0)), False)
sketch3.addGeometry(Part.ArcOfCircle(Part.Circle(V(21.5, 3.5, 0), V(0, 0, 1), 1.5), math.radians(-90), math.radians(0)), False)
sketch3.addConstraint(Sketcher.Constraint("Tangent", 0, 2, 1, 1))
sketch3.addConstraint(Sketcher.Constraint("Tangent", 1, 2, 2, 1))
sketch3.addConstraint(Sketcher.Constraint("Tangent", 2, 2, 3, 1))
sketch3.addConstraint(Sketcher.Constraint("Tangent", 3, 2, 4, 1))
sketch3.addConstraint(Sketcher.Constraint("Tangent", 4, 2, 5, 1))
sketch3.addConstraint(Sketcher.Constraint("Tangent", 5, 2, 6, 1))
sketch3.addConstraint(Sketcher.Constraint("Tangent", 6, 2, 7, 1))
sketch3.addConstraint(Sketcher.Constraint("Tangent", 7, 2, 0, 1))
sketch3.addConstraint(Sketcher.Constraint("Tangent", 8, 2, 9, 2))
sketch3.addConstraint(Sketcher.Constraint("Tangent", 9, 1, 10, 1))
sketch3.addConstraint(Sketcher.Constraint("Tangent", 10, 2, 11, 2))
sketch3.addConstraint(Sketcher.Constraint("Tangent", 11, 1, 12, 1))
sketch3.addConstraint(Sketcher.Constraint("Tangent", 12, 2, 13, 2))
sketch3.addConstraint(Sketcher.Constraint("Tangent", 13, 1, 14, 1))
sketch3.addConstraint(Sketcher.Constraint("Tangent", 14, 2, 15, 2))
sketch3.addConstraint(Sketcher.Constraint("Tangent", 15, 1, 8, 1))
sketch3.addConstraint(Sketcher.Constraint("Horizontal", 0))
sketch3.addConstraint(Sketcher.Constraint("Vertical", 2))
sketch3.addConstraint(Sketcher.Constraint("Horizontal", 4))
sketch3.addConstraint(Sketcher.Constraint("Vertical", 6))
sketch3.addConstraint(Sketcher.Constraint("Horizontal", 8))
sketch3.addConstraint(Sketcher.Constraint("Vertical", 10))
sketch3.addConstraint(Sketcher.Constraint("Horizontal", 12))
sketch3.addConstraint(Sketcher.Constraint("Vertical", 14))
sketch3.addConstraint(Sketcher.Constraint("Coincident", 9, 3, 7, 3))
sketch3.addConstraint(Sketcher.Constraint("Coincident", 11, 3, 5, 3))
sketch3.addConstraint(Sketcher.Constraint("Coincident", 13, 3, 3, 3))
sketch3.addConstraint(Sketcher.Constraint("Equal", 1, 3))
sketch3.addConstraint(Sketcher.Constraint("Equal", 3, 5))
sketch3.addConstraint(Sketcher.Constraint("Equal", 5, 7))
sketch3.addConstraint(Sketcher.Constraint("Equal", 13, 15))
sketch3.addConstraint(Sketcher.Constraint("Radius", 1, 2.0))
sketch3.addConstraint(Sketcher.Constraint("Radius", 9, 1.5))
sketch3.addConstraint(Sketcher.Constraint("DistanceX", 0, 1, 0, 2, 18.0))
sketch3.addConstraint(Sketcher.Constraint("DistanceY", 2, 1, 2, 2, 8.0))
sketch3.addConstraint(Sketcher.Constraint("DistanceY", -1, 1, 8, 2, 2.0))
sketch3.addConstraint(Sketcher.Constraint("DistanceX", -1, 1, 9, 1, 2.0))
pocket2 = doc.addObject("PartDesign::Pocket", "Pocket001")
body.addObject(pocket2)
pocket2.Profile = sketch3
pocket2.Type = "TwoLengths"
pocket2.Length = 0.02
pocket2.Length2 = 0.02
pocket2.Reversed = True

doc.recompute()
